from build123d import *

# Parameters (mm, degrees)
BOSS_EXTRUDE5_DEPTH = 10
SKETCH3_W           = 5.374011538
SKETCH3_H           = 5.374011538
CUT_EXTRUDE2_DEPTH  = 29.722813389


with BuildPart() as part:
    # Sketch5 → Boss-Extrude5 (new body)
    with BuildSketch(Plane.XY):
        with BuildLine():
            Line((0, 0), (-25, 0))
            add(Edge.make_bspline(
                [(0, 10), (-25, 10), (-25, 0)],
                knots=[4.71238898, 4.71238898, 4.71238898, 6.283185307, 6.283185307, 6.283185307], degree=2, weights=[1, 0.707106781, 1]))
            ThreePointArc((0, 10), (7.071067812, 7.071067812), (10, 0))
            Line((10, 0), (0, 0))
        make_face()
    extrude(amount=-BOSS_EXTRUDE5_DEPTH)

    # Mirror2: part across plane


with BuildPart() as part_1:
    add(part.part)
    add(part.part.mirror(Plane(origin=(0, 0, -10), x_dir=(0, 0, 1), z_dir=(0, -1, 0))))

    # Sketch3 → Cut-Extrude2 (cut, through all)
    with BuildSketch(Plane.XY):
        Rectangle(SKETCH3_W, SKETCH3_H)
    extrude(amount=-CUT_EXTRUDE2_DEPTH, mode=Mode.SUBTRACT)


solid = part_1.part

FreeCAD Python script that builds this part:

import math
import FreeCAD as App
import Part
import Sketcher

doc = App.newDocument("Part")
body = doc.addObject("PartDesign::Body", "Body")

# Sketch on XY plane
sketch1 = body.newObject("Sketcher::SketchObject", "Sketch")
sketch1.AttachmentSupport = (doc.getObject("XY_Plane"), [""])
sketch1.MapMode = "FlatFace"
sketch1.addGeometry(Part.BSplineCurve([App.Vector(0, 10, 0), App.Vector(-25, 10, 0), App.Vector(-25, 0, 0)], [3, 3], [4.71238898, 6.283185307], False, 2, [1, 0.707106781, 1], False), False)
sketch1.addGeometry(Part.LineSegment(App.Vector(-25, 0, 0), App.Vector(10, 0, 0)), False)
sketch1.addGeometry(Part.ArcOfCircle(Part.Circle(App.Vector(0, 0, 0), App.Vector(0, 0, 1), 10), math.radians(0), math.radians(90)), False)
sketch1.addConstraint(Sketcher.Constraint("Block", 0))
sketch1.addConstraint(Sketcher.Constraint("Coincident", 0, 2, 1, 1))
sketch1.addConstraint(Sketcher.Constraint("Coincident", 1, 2, 2, 1))
sketch1.addConstraint(Sketcher.Constraint("Coincident", 2, 2, 0, 1))
sketch1.addConstraint(Sketcher.Constraint("Horizontal", 1))
sketch1.addConstraint(Sketcher.Constraint("Coincident", 2, 3, -1, 1))
pad1 = body.newObject("PartDesign::Pad", "Pad")
pad1.Profile = sketch1
pad1.Length = 10
pad1.Reversed = True
body2 = doc.addObject("PartDesign::Body", "Body001")
doc.recompute()

body2.BaseFeature = body
doc.recompute()

mirroring = doc.addObject("Part::Mirroring", "Mirroring")
mirroring.Source = body
mirroring.Base = App.Vector(0, 0, -10)
mirroring.Normal = App.Vector(0, -1, 0)
body3 = doc.addObject("PartDesign::Body", "Body002")
body3.BaseFeature = mirroring
boolean = body2.newObject("PartDesign::Boolean", "Boolean")
boolean.Type = "Fuse"
boolean.addObjects([body3])
doc.recompute()

# Sketch on XY plane
sketch2 = body2.newObject("Sketcher::SketchObject", "Sketch001")
sketch2.AttachmentSupport = (doc.getObject("XY_Plane001"), [""])
sketch2.MapMode = "FlatFace"
sketch2.addGeometry(Part.LineSegment(App.Vector(-3, 3, 0), App.Vector(-3, -3, 0)), False)
sketch2.addGeometry(Part.LineSegment(App.Vector(-3, -3, 0), App.Vector(3, -3, 0)), False)
sketch2.addGeometry(Part.LineSegment(App.Vector(3, -3, 0), App.Vector(3, 3, 0)), False)
sketch2.addGeometry(Part.LineSegment(App.Vector(3, 3, 0), App.Vector(-3, 3, 0)), False)
sketch2.addConstraint(Sketcher.Constraint("Coincident", 0, 2, 1, 1))
sketch2.addConstraint(Sketcher.Constraint("Coincident", 1, 2, 2, 1))
sketch2.addConstraint(Sketcher.Constraint("Coincident", 2, 2, 3, 1))
sketch2.addConstraint(Sketcher.Constraint("Coincident", 3, 2, 0, 1))
sketch2.addConstraint(Sketcher.Constraint("Vertical", 0))
sketch2.addConstraint(Sketcher.Constraint("Horizontal", 1))
sketch2.addConstraint(Sketcher.Constraint("Vertical", 2))
sketch2.addConstraint(Sketcher.Constraint("Horizontal", 3))
sketch2.addConstraint(Sketcher.Constraint("Symmetric", 0, 2, 2, 2, -1, 1))
sketch2.addConstraint(Sketcher.Constraint("Equal", 3, 0))
sketch2.addConstraint(Sketcher.Constraint("DistanceX", 1, 1, 1, 2, 5.374012))
pocket1 = body2.newObject("PartDesign::Pocket", "Pocket")
pocket1.Profile = sketch2
pocket1.Type = "ThroughAll"
mirroring.Visibility = False

doc.recompute()
